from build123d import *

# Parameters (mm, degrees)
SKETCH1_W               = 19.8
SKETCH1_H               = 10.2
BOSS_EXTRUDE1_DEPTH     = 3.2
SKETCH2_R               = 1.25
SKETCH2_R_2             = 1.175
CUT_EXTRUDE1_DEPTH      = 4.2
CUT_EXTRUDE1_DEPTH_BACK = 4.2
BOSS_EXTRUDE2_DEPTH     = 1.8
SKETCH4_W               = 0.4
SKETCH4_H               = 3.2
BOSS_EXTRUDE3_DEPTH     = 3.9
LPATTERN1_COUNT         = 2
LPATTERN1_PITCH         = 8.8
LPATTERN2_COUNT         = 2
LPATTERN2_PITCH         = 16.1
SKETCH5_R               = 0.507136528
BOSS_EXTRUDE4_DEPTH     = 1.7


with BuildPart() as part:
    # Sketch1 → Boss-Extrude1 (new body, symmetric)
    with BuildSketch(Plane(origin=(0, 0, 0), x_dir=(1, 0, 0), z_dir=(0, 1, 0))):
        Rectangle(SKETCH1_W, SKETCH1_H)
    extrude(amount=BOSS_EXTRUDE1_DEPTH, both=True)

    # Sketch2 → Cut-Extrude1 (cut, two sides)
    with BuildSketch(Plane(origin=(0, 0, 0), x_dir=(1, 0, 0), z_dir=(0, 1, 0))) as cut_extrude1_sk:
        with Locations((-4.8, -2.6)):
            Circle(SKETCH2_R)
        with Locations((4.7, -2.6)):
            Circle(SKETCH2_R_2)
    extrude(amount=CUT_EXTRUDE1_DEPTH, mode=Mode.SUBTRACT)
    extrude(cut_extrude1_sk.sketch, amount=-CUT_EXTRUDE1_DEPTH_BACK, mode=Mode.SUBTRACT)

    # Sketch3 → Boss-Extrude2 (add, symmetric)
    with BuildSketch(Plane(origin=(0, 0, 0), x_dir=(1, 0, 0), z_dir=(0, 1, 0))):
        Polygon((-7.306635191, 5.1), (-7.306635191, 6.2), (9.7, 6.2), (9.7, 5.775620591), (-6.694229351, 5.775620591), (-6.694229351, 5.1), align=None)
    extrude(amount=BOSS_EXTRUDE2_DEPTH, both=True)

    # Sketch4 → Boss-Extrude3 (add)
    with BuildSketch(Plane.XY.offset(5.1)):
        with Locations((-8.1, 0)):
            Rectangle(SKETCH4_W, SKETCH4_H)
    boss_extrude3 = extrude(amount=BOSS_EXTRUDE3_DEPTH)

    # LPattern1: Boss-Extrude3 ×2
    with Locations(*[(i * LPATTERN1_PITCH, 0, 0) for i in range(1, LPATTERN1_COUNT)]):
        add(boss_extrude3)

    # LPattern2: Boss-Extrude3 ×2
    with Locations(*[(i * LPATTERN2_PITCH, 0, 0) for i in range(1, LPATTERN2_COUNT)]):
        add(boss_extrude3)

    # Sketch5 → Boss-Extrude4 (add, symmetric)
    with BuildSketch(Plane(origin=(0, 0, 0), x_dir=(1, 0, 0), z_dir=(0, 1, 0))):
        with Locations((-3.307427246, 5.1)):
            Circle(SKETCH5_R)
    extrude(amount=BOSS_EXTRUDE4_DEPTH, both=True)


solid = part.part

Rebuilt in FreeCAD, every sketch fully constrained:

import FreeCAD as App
import Part
import Sketcher

V = App.Vector

doc = App.newDocument("Part")
body = doc.addObject("PartDesign::Body", "Body")

# Sketch on XZ plane
sketch1 = doc.addObject("Sketcher::SketchObject", "Sketch")
body.addObject(sketch1)
sketch1.AttachmentSupport = (doc.XZ_Plane, [""])
sketch1.MapMode = "FlatFace"
sketch1.addGeometry(Part.LineSegment(V(-10, -5, 0), V(-10, 5, 0)), False)
sketch1.addGeometry(Part.LineSegment(V(-10, 5, 0), V(10, 5, 0)), False)
sketch1.addGeometry(Part.LineSegment(V(10, 5, 0), V(10, -5, 0)), False)
sketch1.addGeometry(Part.LineSegment(V(10, -5, 0), V(-10, -5, 0)), False)
sketch1.addConstraint(Sketcher.Constraint("Coincident", 0, 2, 1, 1))
sketch1.addConstraint(Sketcher.Constraint("Coincident", 1, 2, 2, 1))
sketch1.addConstraint(Sketcher.Constraint("Coincident", 2, 2, 3, 1))
sketch1.addConstraint(Sketcher.Constraint("Coincident", 3, 2, 0, 1))
sketch1.addConstraint(Sketcher.Constraint("Vertical", 0))
sketch1.addConstraint(Sketcher.Constraint("Horizontal", 1))
sketch1.addConstraint(Sketcher.Constraint("Vertical", 2))
sketch1.addConstraint(Sketcher.Constraint("Horizontal", 3))
sketch1.addConstraint(Sketcher.Constraint("Symmetric", 0, 2, 2, 2, -1, 1))
sketch1.addConstraint(Sketcher.Constraint("DistanceX", 1, 1, 1, 2, 19.8))
sketch1.addConstraint(Sketcher.Constraint("DistanceY", 0, 1, 0, 2, 10.2))
pad1 = doc.addObject("PartDesign::Pad", "Pad")
body.addObject(pad1)
pad1.Profile = sketch1
pad1.Length = 6.4
pad1.Midplane = True

# Sketch on XZ plane
sketch2 = doc.addObject("Sketcher::SketchObject", "Sketch001")
body.addObject(sketch2)
sketch2.AttachmentSupport = (doc.XZ_Plane, [""])
sketch2.MapMode = "FlatFace"
sketch2.addGeometry(Part.Circle(V(-4.8, 2.6, 0), V(0, 0, 1), 1.2), False)
sketch2.addGeometry(Part.Circle(V(4.7, 2.6, 0), V(0, 0, 1), 1.2), False)
sketch2.addConstraint(Sketcher.Constraint("Horizontal", 0, 3, 1, 3))
sketch2.addConstraint(Sketcher.Constraint("Diameter", 0, 2.5))
sketch2.addConstraint(Sketcher.Constraint("Diameter", 1, 2.35))
sketch2.addConstraint(Sketcher.Constraint("DistanceX", 0, 3, -1, 1, 4.8))
sketch2.addConstraint(Sketcher.Constraint("DistanceY", -1, 1, 0, 3, 2.6))
sketch2.addConstraint(Sketcher.Constraint("DistanceX", -1, 1, 1, 3, 4.7))
pocket1 = doc.addObject("PartDesign::Pocket", "Pocket")
body.addObject(pocket1)
pocket1.Profile = sketch2
pocket1.Type = "ThroughAll"
pocket1.Midplane = True

# Sketch on XZ plane
sketch3 = doc.addObject("Sketcher::SketchObject", "Sketch002")
body.addObject(sketch3)
sketch3.AttachmentSupport = (doc.XZ_Plane, [""])
sketch3.MapMode = "FlatFace"
sketch3.addGeometry(Part.LineSegment(V(-7.31, -6.2, 0), V(-7.31, -5.1, 0)), False)
sketch3.addGeometry(Part.LineSegment(V(-7.31, -5.1, 0), V(-6.69, -5.1, 0)), False)
sketch3.addGeometry(Part.LineSegment(V(-6.69, -5.1, 0), V(-6.69, -5.78, 0)), False)
sketch3.addGeometry(Part.LineSegment(V(-6.69, -5.78, 0), V(9.7, -5.78, 0)), False)
sketch3.addGeometry(Part.LineSegment(V(9.7, -5.78, 0), V(9.7, -6.2, 0)), False)
sketch3.addGeometry(Part.LineSegment(V(9.7, -6.2, 0), V(-7.31, -6.2, 0)), False)
sketch3.addConstraint(Sketcher.Constraint("Coincident", 0, 2, 1, 1))
sketch3.addConstraint(Sketcher.Constraint("Coincident", 1, 2, 2, 1))
sketch3.addConstraint(Sketcher.Constraint("Coincident", 2, 2, 3, 1))
sketch3.addConstraint(Sketcher.Constraint("Coincident", 3, 2, 4, 1))
sketch3.addConstraint(Sketcher.Constraint("Coincident", 4, 2, 5, 1))
sketch3.addConstraint(Sketcher.Constraint("Coincident", 5, 2, 0, 1))
sketch3.addConstraint(Sketcher.Constraint("Vertical", 0))
sketch3.addConstraint(Sketcher.Constraint("Horizontal", 1))
sketch3.addConstraint(Sketcher.Constraint("Vertical", 2))
sketch3.addConstraint(Sketcher.Constraint("Horizontal", 3))
sketch3.addConstraint(Sketcher.Constraint("Vertical", 4))
sketch3.addConstraint(Sketcher.Constraint("Horizontal", 5))
sketch3.addConstraint(Sketcher.Constraint("DistanceY", 0, 1, 0, 2, 1.1))
sketch3.addConstraint(Sketcher.Constraint("DistanceY", 0, 2, -1, 1, 5.1))
sketch3.addConstraint(Sketcher.Constraint("DistanceX", -1, 1, 3, 2, 9.7))
sketch3.addConstraint(Sketcher.Constraint("DistanceX", 3, 1, 3, 2, 16.394229))
sketch3.addConstraint(Sketcher.Constraint("DistanceY", 2, 2, 2, 1, 0.675621))
sketch3.addConstraint(Sketcher.Constraint("DistanceX", 1, 1, 1, 2, 0.612406))
pad2 = doc.addObject("PartDesign::Pad", "Pad001")
body.addObject(pad2)
pad2.Profile = sketch3
pad2.Length = 3.6
pad2.Midplane = True

# Sketch on XY plane
sketch4 = doc.addObject("Sketcher::SketchObject", "Sketch003")
body.addObject(sketch4)
sketch4.AttachmentSupport = (doc.XY_Plane, [""])
sketch4.MapMode = "FlatFace"
sketch4.AttachmentOffset = App.Placement(V(0, 0, 5.1), App.Rotation())
sketch4.addGeometry(Part.LineSegment(V(-8.3, 1.6, 0), V(-8.3, -1.6, 0)), False)
sketch4.addGeometry(Part.LineSegment(V(-8.3, -1.6, 0), V(-7.9, -1.6, 0)), False)
sketch4.addGeometry(Part.LineSegment(V(-7.9, -1.6, 0), V(-7.9, 1.6, 0)), False)
sketch4.addGeometry(Part.LineSegment(V(-7.9, 1.6, 0), V(-8.3, 1.6, 0)), False)
sketch4.addConstraint(Sketcher.Constraint("Coincident", 0, 2, 1, 1))
sketch4.addConstraint(Sketcher.Constraint("Coincident", 1, 2, 2, 1))
sketch4.addConstraint(Sketcher.Constraint("Coincident", 2, 2, 3, 1))
sketch4.addConstraint(Sketcher.Constraint("Coincident", 3, 2, 0, 1))
sketch4.addConstraint(Sketcher.Constraint("Vertical", 0))
sketch4.addConstraint(Sketcher.Constraint("Horizontal", 1))
sketch4.addConstraint(Sketcher.Constraint("Vertical", 2))
sketch4.addConstraint(Sketcher.Constraint("Horizontal", 3))
sketch4.addConstraint(Sketcher.Constraint("DistanceX", 1, 1, 1, 2, 0.4))
sketch4.addConstraint(Sketcher.Constraint("DistanceY", 0, 2, 0, 1, 3.2))
sketch4.addConstraint(Sketcher.Constraint("DistanceX", 0, 2, -1, 1, 8.3))
sketch4.addConstraint(Sketcher.Constraint("DistanceY", 0, 2, -1, 1, 1.6))
pad3 = doc.addObject("PartDesign::Pad", "Pad002")
body.addObject(pad3)
pad3.Profile = sketch4
pad3.Length = 3.9
doc.recompute()

linearpattern = doc.addObject("PartDesign::LinearPattern", "LinearPattern")
body.addObject(linearpattern)
linearpattern.Originals = [pad3]
linearpattern.Direction = (doc.X_Axis, [""])
linearpattern.Mode = "offset"
linearpattern.Offset = 8.8
linearpattern.Occurrences = 2
body.Tip = linearpattern
doc.recompute()

linearpattern2 = doc.addObject("PartDesign::LinearPattern", "LinearPattern001")
body.addObject(linearpattern2)
linearpattern2.Originals = [pad3]
linearpattern2.Direction = (doc.X_Axis, [""])
linearpattern2.Mode = "offset"
linearpattern2.Offset = 16.1
linearpattern2.Occurrences = 2
body.Tip = linearpattern2

# Sketch on XZ plane
sketch5 = doc.addObject("Sketcher::SketchObject", "Sketch004")
body.addObject(sketch5)
sketch5.AttachmentSupport = (doc.XZ_Plane, [""])
sketch5.MapMode = "FlatFace"
sketch5.addGeometry(Part.Circle(V(-3.3, -5.1, 0), V(0, 0, 1), 0.5), False)
sketch5.addConstraint(Sketcher.Constraint("DistanceY", 0, 3, -1, 1, 5.1))
sketch5.addConstraint(Sketcher.Constraint("Diameter", 0, 1.014273))
sketch5.addConstraint(Sketcher.Constraint("DistanceX", 0, 3, -1, 1, 3.307427))
pad4 = doc.addObject("PartDesign::Pad", "Pad003")
body.addObject(pad4)
pad4.Profile = sketch5
pad4.Length = 3.4
pad4.Midplane = True

doc.recompute()
